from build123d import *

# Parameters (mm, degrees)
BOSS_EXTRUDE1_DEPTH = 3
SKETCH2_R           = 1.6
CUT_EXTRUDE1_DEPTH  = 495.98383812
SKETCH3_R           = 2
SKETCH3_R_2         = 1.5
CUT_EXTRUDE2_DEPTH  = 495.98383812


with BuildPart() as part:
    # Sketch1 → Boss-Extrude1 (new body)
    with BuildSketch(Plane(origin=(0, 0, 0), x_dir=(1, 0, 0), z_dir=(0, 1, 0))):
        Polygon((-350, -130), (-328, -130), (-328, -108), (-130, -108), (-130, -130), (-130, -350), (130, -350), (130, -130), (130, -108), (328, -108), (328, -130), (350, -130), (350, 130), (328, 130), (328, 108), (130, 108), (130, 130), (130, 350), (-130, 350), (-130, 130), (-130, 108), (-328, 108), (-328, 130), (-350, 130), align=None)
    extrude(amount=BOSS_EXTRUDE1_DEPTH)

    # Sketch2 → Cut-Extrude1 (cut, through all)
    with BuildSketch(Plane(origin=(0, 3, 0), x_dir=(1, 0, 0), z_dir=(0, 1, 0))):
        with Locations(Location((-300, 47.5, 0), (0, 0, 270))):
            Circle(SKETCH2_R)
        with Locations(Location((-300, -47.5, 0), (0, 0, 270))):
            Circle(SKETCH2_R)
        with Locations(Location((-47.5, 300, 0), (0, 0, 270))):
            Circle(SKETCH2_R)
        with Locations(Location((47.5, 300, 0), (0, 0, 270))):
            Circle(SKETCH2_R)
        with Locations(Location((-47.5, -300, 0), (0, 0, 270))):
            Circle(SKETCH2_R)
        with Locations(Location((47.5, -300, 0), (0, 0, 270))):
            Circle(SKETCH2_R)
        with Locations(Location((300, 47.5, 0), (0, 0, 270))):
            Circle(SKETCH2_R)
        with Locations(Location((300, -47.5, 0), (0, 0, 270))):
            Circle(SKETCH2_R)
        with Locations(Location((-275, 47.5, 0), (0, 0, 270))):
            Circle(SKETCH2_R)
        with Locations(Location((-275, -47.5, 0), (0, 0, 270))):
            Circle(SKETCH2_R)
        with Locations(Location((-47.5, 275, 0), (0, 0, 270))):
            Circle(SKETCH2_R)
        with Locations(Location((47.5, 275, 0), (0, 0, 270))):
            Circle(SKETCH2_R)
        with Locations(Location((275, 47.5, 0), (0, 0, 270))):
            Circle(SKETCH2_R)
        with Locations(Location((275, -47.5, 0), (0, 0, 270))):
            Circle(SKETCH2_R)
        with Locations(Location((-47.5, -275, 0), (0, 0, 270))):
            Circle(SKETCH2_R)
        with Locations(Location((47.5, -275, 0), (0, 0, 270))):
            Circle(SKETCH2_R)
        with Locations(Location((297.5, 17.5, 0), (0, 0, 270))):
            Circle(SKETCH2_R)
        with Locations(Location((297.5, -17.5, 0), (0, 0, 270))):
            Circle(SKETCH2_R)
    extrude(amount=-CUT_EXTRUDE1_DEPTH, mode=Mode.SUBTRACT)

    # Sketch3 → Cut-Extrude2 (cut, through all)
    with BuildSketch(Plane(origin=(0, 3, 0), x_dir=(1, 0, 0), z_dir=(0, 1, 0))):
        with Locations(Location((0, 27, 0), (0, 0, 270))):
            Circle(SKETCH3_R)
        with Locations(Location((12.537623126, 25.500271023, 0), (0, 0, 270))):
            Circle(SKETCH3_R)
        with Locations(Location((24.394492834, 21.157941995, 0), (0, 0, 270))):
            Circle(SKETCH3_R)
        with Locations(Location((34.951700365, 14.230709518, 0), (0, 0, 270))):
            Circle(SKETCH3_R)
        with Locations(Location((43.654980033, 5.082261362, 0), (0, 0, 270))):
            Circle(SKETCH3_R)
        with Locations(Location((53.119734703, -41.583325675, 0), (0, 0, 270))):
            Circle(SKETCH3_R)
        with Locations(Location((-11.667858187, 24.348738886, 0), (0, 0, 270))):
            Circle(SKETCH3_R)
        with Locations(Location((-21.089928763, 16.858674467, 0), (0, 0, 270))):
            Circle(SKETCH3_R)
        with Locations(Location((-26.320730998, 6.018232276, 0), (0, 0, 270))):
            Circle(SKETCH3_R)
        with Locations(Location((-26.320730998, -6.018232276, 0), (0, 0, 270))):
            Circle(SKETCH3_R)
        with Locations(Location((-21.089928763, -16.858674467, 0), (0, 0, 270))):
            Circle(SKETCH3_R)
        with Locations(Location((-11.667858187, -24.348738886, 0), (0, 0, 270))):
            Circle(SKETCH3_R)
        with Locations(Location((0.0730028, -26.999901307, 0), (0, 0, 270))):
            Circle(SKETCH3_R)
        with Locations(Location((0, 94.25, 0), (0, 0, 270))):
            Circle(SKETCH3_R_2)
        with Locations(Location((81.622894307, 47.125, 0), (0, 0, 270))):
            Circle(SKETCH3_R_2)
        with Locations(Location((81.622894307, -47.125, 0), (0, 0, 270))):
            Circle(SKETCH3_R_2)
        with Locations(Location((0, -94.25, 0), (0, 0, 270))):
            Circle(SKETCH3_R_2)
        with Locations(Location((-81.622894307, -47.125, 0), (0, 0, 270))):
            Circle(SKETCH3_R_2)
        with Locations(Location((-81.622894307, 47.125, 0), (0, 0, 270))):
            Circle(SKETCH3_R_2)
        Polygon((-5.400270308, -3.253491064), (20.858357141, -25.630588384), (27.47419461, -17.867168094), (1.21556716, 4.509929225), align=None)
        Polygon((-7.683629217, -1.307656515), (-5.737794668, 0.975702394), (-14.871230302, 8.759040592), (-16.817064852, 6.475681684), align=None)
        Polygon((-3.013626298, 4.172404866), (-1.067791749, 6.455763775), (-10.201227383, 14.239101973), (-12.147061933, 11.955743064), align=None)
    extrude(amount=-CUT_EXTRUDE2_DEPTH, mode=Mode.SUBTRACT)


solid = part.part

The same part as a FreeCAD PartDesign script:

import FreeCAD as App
import Part
import Sketcher
Q = App.Units.Quantity


def add_polygon(sketch, points):
    """Adds a closed chain of lines whose ends are joined by coincident constraints."""
    first, n = sketch.GeometryCount, len(points)
    for a, b in zip(points, points[1:] + points[:1]):
        sketch.addGeometry(Part.LineSegment(App.Vector(*a, 0), App.Vector(*b, 0)), False)
    for i in range(n):
        sketch.addConstraint(Sketcher.Constraint("Coincident", first + i, 2, first + (i + 1) % n, 1))

doc = App.newDocument("Part")
body = doc.addObject("PartDesign::Body", "Body")

sketch1 = body.newObject("Sketcher::SketchObject", "Sketch")
sketch1.AttachmentSupport = (doc.getObject("XZ_Plane"), [""])
sketch1.MapMode = "FlatFace"
add_polygon(sketch1, [(-350, 130), (-328, 130), (-328, 108), (-130, 108), (-130, 350), (130, 350), (130, 108), (328, 108), (328, 130), (350, 130), (350, -130), (328, -130), (328, -108), (130, -108), (130, -350), (-130, -350), (-130, -108), (-328, -108), (-328, -130), (-350, -130)])
sketch1.addConstraint([
    Sketcher.Constraint("Horizontal", 0),
    Sketcher.Constraint("Vertical", 1),
    Sketcher.Constraint("Horizontal", 2),
    Sketcher.Constraint("Vertical", 3),
    Sketcher.Constraint("Horizontal", 4),
    Sketcher.Constraint("Vertical", 5),
    Sketcher.Constraint("Horizontal", 6),
    Sketcher.Constraint("Vertical", 7),
    Sketcher.Constraint("Horizontal", 8),
    Sketcher.Constraint("Vertical", 9),
    Sketcher.Constraint("Horizontal", 10),
    Sketcher.Constraint("Vertical", 11),
    Sketcher.Constraint("Horizontal", 12),
    Sketcher.Constraint("Vertical", 13),
    Sketcher.Constraint("Horizontal", 14),
    Sketcher.Constraint("Vertical", 15),
    Sketcher.Constraint("Horizontal", 16),
    Sketcher.Constraint("Vertical", 17),
    Sketcher.Constraint("Horizontal", 18),
    Sketcher.Constraint("Vertical", 19),
    Sketcher.Constraint("Symmetric", 0, 2, 10, 2, -1, 1),
    Sketcher.Constraint("Symmetric", 2, 2, 12, 2, -1, 1),
    Sketcher.Constraint("Symmetric", 4, 2, 14, 2, -1, 1),
    Sketcher.Constraint("Symmetric", 6, 2, 16, 2, -1, 1),
    Sketcher.Constraint("Symmetric", 8, 2, 18, 2, -1, 1),
    Sketcher.Constraint("Symmetric", 2, 2, 5, 2, -2),
    Sketcher.Constraint("Symmetric", 0, 2, 7, 2, -2),
    Sketcher.Constraint("Equal", 18, 1),
    Sketcher.Constraint("Equal", 14, 9),
    Sketcher.Constraint("DistanceX", 0, 1, 0, 2, Q("22 mm")),
    Sketcher.Constraint("DistanceX", 2, 1, 2, 2, Q("198 mm")),
    Sketcher.Constraint("DistanceX", 4, 1, 4, 2, Q("260 mm")),
    Sketcher.Constraint("DistanceY", 3, 1, 3, 2, Q("242 mm")),
])
pad1 = body.newObject("PartDesign::Pad", "Pad")
pad1.Profile = sketch1
pad1.Length = 3
pad1.Reversed = True

sketch2 = body.newObject("Sketcher::SketchObject", "Sketch001")
sketch2.AttachmentSupport = (doc.getObject("XZ_Plane"), [""])
sketch2.MapMode = "FlatFace"
sketch2.AttachmentOffset = App.Placement(App.Vector(0, 0, -3), App.Rotation())
sketch2.addGeometry([
    Part.Circle(App.Vector(-300, -47.5, 0), App.Vector(0, 0, 1), 1.6),
    Part.Circle(App.Vector(-300, 47.5, 0), App.Vector(0, 0, 1), 1.6),
    Part.Circle(App.Vector(-47.5, -300, 0), App.Vector(0, 0, 1), 1.6),
    Part.Circle(App.Vector(47.5, -300, 0), App.Vector(0, 0, 1), 1.6),
    Part.Circle(App.Vector(-47.5, 300, 0), App.Vector(0, 0, 1), 1.6),
    Part.Circle(App.Vector(47.5, 300, 0), App.Vector(0, 0, 1), 1.6),
    Part.Circle(App.Vector(300, -47.5, 0), App.Vector(0, 0, 1), 1.6),
    Part.Circle(App.Vector(300, 47.5, 0), App.Vector(0, 0, 1), 1.6),
    Part.Circle(App.Vector(-275, -47.5, 0), App.Vector(0, 0, 1), 1.6),
    Part.Circle(App.Vector(-275, 47.5, 0), App.Vector(0, 0, 1), 1.6),
    Part.Circle(App.Vector(-47.5, -275, 0), App.Vector(0, 0, 1), 1.6),
    Part.Circle(App.Vector(47.5, -275, 0), App.Vector(0, 0, 1), 1.6),
    Part.Circle(App.Vector(275, -47.5, 0), App.Vector(0, 0, 1), 1.6),
    Part.Circle(App.Vector(275, 47.5, 0), App.Vector(0, 0, 1), 1.6),
    Part.Circle(App.Vector(-47.5, 275, 0), App.Vector(0, 0, 1), 1.6),
    Part.Circle(App.Vector(47.5, 275, 0), App.Vector(0, 0, 1), 1.6),
    Part.Circle(App.Vector(297.5, -17.5, 0), App.Vector(0, 0, 1), 1.6),
    Part.Circle(App.Vector(297.5, 17.5, 0), App.Vector(0, 0, 1), 1.6),
], False)
sketch2.addConstraint([
    Sketcher.Constraint("Equal", 0, 1),
    Sketcher.Constraint("Equal", 1, 2),
    Sketcher.Constraint("Equal", 2, 3),
    Sketcher.Constraint("Equal", 3, 4),
    Sketcher.Constraint("Equal", 4, 5),
    Sketcher.Constraint("Equal", 5, 6),
    Sketcher.Constraint("Equal", 6, 7),
    Sketcher.Constraint("Equal", 7, 8),
    Sketcher.Constraint("Equal", 8, 9),
    Sketcher.Constraint("Equal", 9, 10),
    Sketcher.Constraint("Equal", 10, 11),
    Sketcher.Constraint("Equal", 11, 12),
    Sketcher.Constraint("Equal", 12, 13),
    Sketcher.Constraint("Equal", 13, 14),
    Sketcher.Constraint("Equal", 14, 15),
    Sketcher.Constraint("Equal", 15, 16),
    Sketcher.Constraint("Equal", 16, 17),
    Sketcher.Constraint("Symmetric", 3, 3, 4, 3, -1, 1),
    Sketcher.Constraint("Symmetric", 2, 3, 5, 3, -1, 1),
    Sketcher.Constraint("Symmetric", 1, 3, 6, 3, -1, 1),
    Sketcher.Constraint("Symmetric", 0, 3, 7, 3, -1, 1),
    Sketcher.Constraint("Symmetric", 9, 3, 12, 3, -1, 1),
    Sketcher.Constraint("Symmetric", 8, 3, 13, 3, -1, 1),
    Sketcher.Constraint("Symmetric", 11, 3, 14, 3, -1, 1),
    Sketcher.Constraint("Symmetric", 10, 3, 15, 3, -1, 1),
    Sketcher.Constraint("Symmetric", 2, 3, 3, 3, -2),
    Sketcher.Constraint("Symmetric", 0, 3, 6, 3, -2),
    Sketcher.Constraint("Symmetric", 10, 3, 11, 3, -2),
    Sketcher.Constraint("Symmetric", 8, 3, 12, 3, -2),
    Sketcher.Constraint("Symmetric", 16, 3, 17, 3, -1),
    Sketcher.Constraint("Horizontal", 6, 3, 8, 3),
    Sketcher.Constraint("Vertical", 4, 3, 10, 3),
    Sketcher.Constraint("Diameter", 0, Q("3.2 mm")),
    Sketcher.Constraint("DistanceX", 0, 3, -1, 1, Q("300 mm")),
    Sketcher.Constraint("DistanceY", 2, 3, -1, 1, Q("300 mm")),
    Sketcher.Constraint("DistanceX", 8, 3, -1, 1, Q("275 mm")),
    Sketcher.Constraint("DistanceY", 10, 3, -1, 1, Q("275 mm")),
    Sketcher.Constraint("DistanceY", 0, 3, 1, 3, Q("95 mm")),
    Sketcher.Constraint("DistanceX", 2, 3, 3, 3, Q("95 mm")),
    Sketcher.Constraint("DistanceY", 6, 3, 16, 3, Q("30 mm")),
    Sketcher.Constraint("DistanceX", 11, 3, 16, 3, Q("250 mm")),
])
pocket1 = body.newObject("PartDesign::Pocket", "Pocket")
pocket1.Profile = sketch2
pocket1.Type = "ThroughAll"
pocket1.Reversed = True

sketch3 = body.newObject("Sketcher::SketchObject", "Sketch002")
sketch3.AttachmentSupport = (doc.getObject("XZ_Plane"), [""])
sketch3.MapMode = "FlatFace"
sketch3.AttachmentOffset = App.Placement(App.Vector(0, 0, -3), App.Rotation())
sketch3.addGeometry(Part.Circle(App.Vector(0, -27, 0), App.Vector(0, 0, 1), 2), False)
sketch3.addGeometry(Part.Circle(App.Vector(12.5, -25.5, 0), App.Vector(0, 0, 1), 2), False)
sketch3.addGeometry(Part.Circle(App.Vector(24.4, -21.2, 0), App.Vector(0, 0, 1), 2), False)
sketch3.addGeometry(Part.Circle(App.Vector(35, -14.2, 0), App.Vector(0, 0, 1), 2), False)
sketch3.addGeometry(Part.Circle(App.Vector(43.7, -5.1, 0), App.Vector(0, 0, 1), 2), False)
sketch3.addGeometry(Part.Circle(App.Vector(53.1, 41.6, 0), App.Vector(0, 0, 1), 2), False)
sketch3.addGeometry(Part.Circle(App.Vector(-11.7, -24.3, 0), App.Vector(0, 0, 1), 2), False)
sketch3.addGeometry(Part.Circle(App.Vector(-21.1, -16.9, 0), App.Vector(0, 0, 1), 2), False)
sketch3.addGeometry(Part.Circle(App.Vector(-26.3, -6, 0), App.Vector(0, 0, 1), 2), False)
sketch3.addGeometry(Part.Circle(App.Vector(-26.3, 6, 0), App.Vector(0, 0, 1), 2), False)
sketch3.addGeometry(Part.Circle(App.Vector(-21.1, 16.9, 0), App.Vector(0, 0, 1), 2), False)
sketch3.addGeometry(Part.Circle(App.Vector(-11.7, 24.3, 0), App.Vector(0, 0, 1), 2), False)
sketch3.addGeometry(Part.Circle(App.Vector(0.1, 27, 0), App.Vector(0, 0, 1), 2), False)
sketch3.addGeometry(Part.Circle(App.Vector(0, -94.2, 0), App.Vector(0, 0, 1), 1.5), False)
sketch3.addGeometry(Part.Circle(App.Vector(81.6, -47.1, 0), App.Vector(0, 0, 1), 1.5), False)
sketch3.addGeometry(Part.Circle(App.Vector(81.6, 47.1, 0), App.Vector(0, 0, 1), 1.5), False)
sketch3.addGeometry(Part.Circle(App.Vector(0, 94.2, 0), App.Vector(0, 0, 1), 1.5), False)
sketch3.addGeometry(Part.Circle(App.Vector(-81.6, 47.1, 0), App.Vector(0, 0, 1), 1.5), False)
sketch3.addGeometry(Part.Circle(App.Vector(-81.6, -47.1, 0), App.Vector(0, 0, 1), 1.5), False)
add_polygon(sketch3, [(-5.4, 3.3), (20.9, 25.6), (27.5, 17.9), (1.2, -4.5)])
add_polygon(sketch3, [(-7.7, 1.3), (-5.7, -1), (-14.9, -8.8), (-16.8, -6.5)])
add_polygon(sketch3, [(-3, -4.2), (-1.1, -6.5), (-10.2, -14.2), (-12.1, -12)])
sketch3.addConstraint([
    Sketcher.Constraint("Equal", 0, 1),
    Sketcher.Constraint("Equal", 1, 2),
    Sketcher.Constraint("Equal", 2, 3),
    Sketcher.Constraint("Equal", 3, 4),
    Sketcher.Constraint("Equal", 4, 5),
    Sketcher.Constraint("Equal", 5, 6),
    Sketcher.Constraint("Equal", 6, 7),
    Sketcher.Constraint("Equal", 7, 8),
    Sketcher.Constraint("Equal", 8, 9),
    Sketcher.Constraint("Equal", 9, 10),
    Sketcher.Constraint("Equal", 10, 11),
    Sketcher.Constraint("Equal", 11, 12),
    Sketcher.Constraint("Equal", 13, 14),
    Sketcher.Constraint("Equal", 14, 15),
    Sketcher.Constraint("Equal", 15, 16),
    Sketcher.Constraint("Equal", 16, 17),
    Sketcher.Constraint("Equal", 17, 18),
    Sketcher.Constraint("Symmetric", 13, 3, 16, 3, -1, 1),
    Sketcher.Constraint("Symmetric", 14, 3, 17, 3, -1, 1),
    Sketcher.Constraint("Symmetric", 15, 3, 18, 3, -1, 1),
    Sketcher.Constraint("Symmetric", 15, 3, 17, 3, -2),
    Sketcher.Constraint("Symmetric", 8, 3, 9, 3, -1),
    Sketcher.Constraint("Symmetric", 7, 3, 10, 3, -1),
    Sketcher.Constraint("Symmetric", 6, 3, 11, 3, -1),
    Sketcher.Constraint("PointOnObject", 0, 3, -2),
    Sketcher.Constraint("PointOnObject", 13, 3, -2),
    Sketcher.Constraint("Perpendicular", 19, 20),
    Sketcher.Constraint("Perpendicular", 20, 21),
    Sketcher.Constraint("Perpendicular", 21, 22),
    Sketcher.Constraint("Parallel", 22, 23),
    Sketcher.Constraint("Perpendicular", 23, 24),
    Sketcher.Constraint("Perpendicular", 24, 25),
    Sketcher.Constraint("Perpendicular", 25, 26),
    Sketcher.Constraint("Perpendicular", 26, 27),
    Sketcher.Constraint("Perpendicular", 27, 28),
    Sketcher.Constraint("Perpendicular", 28, 29),
    Sketcher.Constraint("Perpendicular", 29, 30),
    Sketcher.Constraint("Equal", 25, 27),
    Sketcher.Constraint("Equal", 26, 28),
    Sketcher.Constraint("Diameter", 0, Q("4 mm")),
    Sketcher.Constraint("Diameter", 13, Q("3 mm")),
    Sketcher.Constraint("Distance", 23, Q("3 mm")),
    Sketcher.Constraint("Distance", 24, Q("12 mm")),
    Sketcher.Constraint("DistanceY", 0, 3, -1, 1, Q("27 mm")),
    Sketcher.Constraint("Distance", 19, Q("34.5 mm")),
    Sketcher.Constraint("Distance", 20, Q("10.2 mm")),
    Sketcher.Constraint("DistanceY", 13, 3, -1, 1, Q("94.25 mm")),
    Sketcher.Constraint("DistanceY", 14, 3, -1, 1, Q("47.125 mm")),
    Sketcher.Constraint("DistanceX", -1, 1, 3, 3, Q("34.9517 mm")),
    Sketcher.Constraint("DistanceY", -1, 1, 12, 3, Q("26.999901 mm")),
    Sketcher.Constraint("DistanceY", 28, 2, -1, 1, Q("14.239102 mm")),
    Sketcher.Constraint("DistanceX", 2, 3, 14, 3, Q("57.228401 mm")),
    Sketcher.Constraint("DistanceX", 8, 3, 21, 2, Q("27.536298 mm")),
    Sketcher.Constraint("DistanceX", 7, 3, 24, 2, Q("6.218698 mm")),
    Sketcher.Constraint("DistanceX", 8, 3, 24, 2, Q("11.449501 mm")),
    Sketcher.Constraint("DistanceY", 6, 3, 24, 2, Q("15.589698 mm")),
    Sketcher.Constraint("DistanceX", 24, 2, 26, 2, Q("7.187601 mm")),
    Sketcher.Constraint("DistanceX", 7, 3, 28, 2, Q("10.888701 mm")),
    Sketcher.Constraint("DistanceY", 1, 3, -1, 1, Q("25.500271 mm")),
    Sketcher.Constraint("DistanceY", 2, 3, -1, 1, Q("21.157942 mm")),
    Sketcher.Constraint("DistanceY", 3, 3, -1, 1, Q("14.23071 mm")),
    Sketcher.Constraint("DistanceX", -1, 1, 4, 3, Q("43.65498 mm")),
    Sketcher.Constraint("DistanceY", 4, 3, -1, 1, Q("5.082261 mm")),
    Sketcher.Constraint("DistanceX", 6, 3, -1, 1, Q("11.667858 mm")),
    Sketcher.Constraint("DistanceY", 6, 3, -1, 1, Q("24.348739 mm")),
    Sketcher.Constraint("DistanceX", 7, 3, -1, 1, Q("21.089929 mm")),
    Sketcher.Constraint("DistanceY", -1, 1, 19, 2, Q("25.630588 mm")),
    Sketcher.Constraint("DistanceX", 1, 3, 2, 3, Q("11.85687 mm")),
    Sketcher.Constraint("DistanceX", 2, 3, 5, 3, Q("28.725242 mm")),
    Sketcher.Constraint("DistanceX", 6, 3, 1, 3, Q("24.205481 mm")),
    Sketcher.Constraint("DistanceY", 1, 3, 8, 3, Q("19.482039 mm")),
    Sketcher.Constraint("DistanceY", 7, 3, 10, 3, Q("33.717349 mm")),
    Sketcher.Constraint("DistanceX", 11, 3, 12, 3, Q("11.740861 mm")),
    Sketcher.Constraint("DistanceY", -1, 1, 5, 3, Q("41.583326 mm")),
])
pocket2 = body.newObject("PartDesign::Pocket", "Pocket001")
pocket2.Profile = sketch3
pocket2.Type = "ThroughAll"
pocket2.Reversed = True

doc.recompute()
